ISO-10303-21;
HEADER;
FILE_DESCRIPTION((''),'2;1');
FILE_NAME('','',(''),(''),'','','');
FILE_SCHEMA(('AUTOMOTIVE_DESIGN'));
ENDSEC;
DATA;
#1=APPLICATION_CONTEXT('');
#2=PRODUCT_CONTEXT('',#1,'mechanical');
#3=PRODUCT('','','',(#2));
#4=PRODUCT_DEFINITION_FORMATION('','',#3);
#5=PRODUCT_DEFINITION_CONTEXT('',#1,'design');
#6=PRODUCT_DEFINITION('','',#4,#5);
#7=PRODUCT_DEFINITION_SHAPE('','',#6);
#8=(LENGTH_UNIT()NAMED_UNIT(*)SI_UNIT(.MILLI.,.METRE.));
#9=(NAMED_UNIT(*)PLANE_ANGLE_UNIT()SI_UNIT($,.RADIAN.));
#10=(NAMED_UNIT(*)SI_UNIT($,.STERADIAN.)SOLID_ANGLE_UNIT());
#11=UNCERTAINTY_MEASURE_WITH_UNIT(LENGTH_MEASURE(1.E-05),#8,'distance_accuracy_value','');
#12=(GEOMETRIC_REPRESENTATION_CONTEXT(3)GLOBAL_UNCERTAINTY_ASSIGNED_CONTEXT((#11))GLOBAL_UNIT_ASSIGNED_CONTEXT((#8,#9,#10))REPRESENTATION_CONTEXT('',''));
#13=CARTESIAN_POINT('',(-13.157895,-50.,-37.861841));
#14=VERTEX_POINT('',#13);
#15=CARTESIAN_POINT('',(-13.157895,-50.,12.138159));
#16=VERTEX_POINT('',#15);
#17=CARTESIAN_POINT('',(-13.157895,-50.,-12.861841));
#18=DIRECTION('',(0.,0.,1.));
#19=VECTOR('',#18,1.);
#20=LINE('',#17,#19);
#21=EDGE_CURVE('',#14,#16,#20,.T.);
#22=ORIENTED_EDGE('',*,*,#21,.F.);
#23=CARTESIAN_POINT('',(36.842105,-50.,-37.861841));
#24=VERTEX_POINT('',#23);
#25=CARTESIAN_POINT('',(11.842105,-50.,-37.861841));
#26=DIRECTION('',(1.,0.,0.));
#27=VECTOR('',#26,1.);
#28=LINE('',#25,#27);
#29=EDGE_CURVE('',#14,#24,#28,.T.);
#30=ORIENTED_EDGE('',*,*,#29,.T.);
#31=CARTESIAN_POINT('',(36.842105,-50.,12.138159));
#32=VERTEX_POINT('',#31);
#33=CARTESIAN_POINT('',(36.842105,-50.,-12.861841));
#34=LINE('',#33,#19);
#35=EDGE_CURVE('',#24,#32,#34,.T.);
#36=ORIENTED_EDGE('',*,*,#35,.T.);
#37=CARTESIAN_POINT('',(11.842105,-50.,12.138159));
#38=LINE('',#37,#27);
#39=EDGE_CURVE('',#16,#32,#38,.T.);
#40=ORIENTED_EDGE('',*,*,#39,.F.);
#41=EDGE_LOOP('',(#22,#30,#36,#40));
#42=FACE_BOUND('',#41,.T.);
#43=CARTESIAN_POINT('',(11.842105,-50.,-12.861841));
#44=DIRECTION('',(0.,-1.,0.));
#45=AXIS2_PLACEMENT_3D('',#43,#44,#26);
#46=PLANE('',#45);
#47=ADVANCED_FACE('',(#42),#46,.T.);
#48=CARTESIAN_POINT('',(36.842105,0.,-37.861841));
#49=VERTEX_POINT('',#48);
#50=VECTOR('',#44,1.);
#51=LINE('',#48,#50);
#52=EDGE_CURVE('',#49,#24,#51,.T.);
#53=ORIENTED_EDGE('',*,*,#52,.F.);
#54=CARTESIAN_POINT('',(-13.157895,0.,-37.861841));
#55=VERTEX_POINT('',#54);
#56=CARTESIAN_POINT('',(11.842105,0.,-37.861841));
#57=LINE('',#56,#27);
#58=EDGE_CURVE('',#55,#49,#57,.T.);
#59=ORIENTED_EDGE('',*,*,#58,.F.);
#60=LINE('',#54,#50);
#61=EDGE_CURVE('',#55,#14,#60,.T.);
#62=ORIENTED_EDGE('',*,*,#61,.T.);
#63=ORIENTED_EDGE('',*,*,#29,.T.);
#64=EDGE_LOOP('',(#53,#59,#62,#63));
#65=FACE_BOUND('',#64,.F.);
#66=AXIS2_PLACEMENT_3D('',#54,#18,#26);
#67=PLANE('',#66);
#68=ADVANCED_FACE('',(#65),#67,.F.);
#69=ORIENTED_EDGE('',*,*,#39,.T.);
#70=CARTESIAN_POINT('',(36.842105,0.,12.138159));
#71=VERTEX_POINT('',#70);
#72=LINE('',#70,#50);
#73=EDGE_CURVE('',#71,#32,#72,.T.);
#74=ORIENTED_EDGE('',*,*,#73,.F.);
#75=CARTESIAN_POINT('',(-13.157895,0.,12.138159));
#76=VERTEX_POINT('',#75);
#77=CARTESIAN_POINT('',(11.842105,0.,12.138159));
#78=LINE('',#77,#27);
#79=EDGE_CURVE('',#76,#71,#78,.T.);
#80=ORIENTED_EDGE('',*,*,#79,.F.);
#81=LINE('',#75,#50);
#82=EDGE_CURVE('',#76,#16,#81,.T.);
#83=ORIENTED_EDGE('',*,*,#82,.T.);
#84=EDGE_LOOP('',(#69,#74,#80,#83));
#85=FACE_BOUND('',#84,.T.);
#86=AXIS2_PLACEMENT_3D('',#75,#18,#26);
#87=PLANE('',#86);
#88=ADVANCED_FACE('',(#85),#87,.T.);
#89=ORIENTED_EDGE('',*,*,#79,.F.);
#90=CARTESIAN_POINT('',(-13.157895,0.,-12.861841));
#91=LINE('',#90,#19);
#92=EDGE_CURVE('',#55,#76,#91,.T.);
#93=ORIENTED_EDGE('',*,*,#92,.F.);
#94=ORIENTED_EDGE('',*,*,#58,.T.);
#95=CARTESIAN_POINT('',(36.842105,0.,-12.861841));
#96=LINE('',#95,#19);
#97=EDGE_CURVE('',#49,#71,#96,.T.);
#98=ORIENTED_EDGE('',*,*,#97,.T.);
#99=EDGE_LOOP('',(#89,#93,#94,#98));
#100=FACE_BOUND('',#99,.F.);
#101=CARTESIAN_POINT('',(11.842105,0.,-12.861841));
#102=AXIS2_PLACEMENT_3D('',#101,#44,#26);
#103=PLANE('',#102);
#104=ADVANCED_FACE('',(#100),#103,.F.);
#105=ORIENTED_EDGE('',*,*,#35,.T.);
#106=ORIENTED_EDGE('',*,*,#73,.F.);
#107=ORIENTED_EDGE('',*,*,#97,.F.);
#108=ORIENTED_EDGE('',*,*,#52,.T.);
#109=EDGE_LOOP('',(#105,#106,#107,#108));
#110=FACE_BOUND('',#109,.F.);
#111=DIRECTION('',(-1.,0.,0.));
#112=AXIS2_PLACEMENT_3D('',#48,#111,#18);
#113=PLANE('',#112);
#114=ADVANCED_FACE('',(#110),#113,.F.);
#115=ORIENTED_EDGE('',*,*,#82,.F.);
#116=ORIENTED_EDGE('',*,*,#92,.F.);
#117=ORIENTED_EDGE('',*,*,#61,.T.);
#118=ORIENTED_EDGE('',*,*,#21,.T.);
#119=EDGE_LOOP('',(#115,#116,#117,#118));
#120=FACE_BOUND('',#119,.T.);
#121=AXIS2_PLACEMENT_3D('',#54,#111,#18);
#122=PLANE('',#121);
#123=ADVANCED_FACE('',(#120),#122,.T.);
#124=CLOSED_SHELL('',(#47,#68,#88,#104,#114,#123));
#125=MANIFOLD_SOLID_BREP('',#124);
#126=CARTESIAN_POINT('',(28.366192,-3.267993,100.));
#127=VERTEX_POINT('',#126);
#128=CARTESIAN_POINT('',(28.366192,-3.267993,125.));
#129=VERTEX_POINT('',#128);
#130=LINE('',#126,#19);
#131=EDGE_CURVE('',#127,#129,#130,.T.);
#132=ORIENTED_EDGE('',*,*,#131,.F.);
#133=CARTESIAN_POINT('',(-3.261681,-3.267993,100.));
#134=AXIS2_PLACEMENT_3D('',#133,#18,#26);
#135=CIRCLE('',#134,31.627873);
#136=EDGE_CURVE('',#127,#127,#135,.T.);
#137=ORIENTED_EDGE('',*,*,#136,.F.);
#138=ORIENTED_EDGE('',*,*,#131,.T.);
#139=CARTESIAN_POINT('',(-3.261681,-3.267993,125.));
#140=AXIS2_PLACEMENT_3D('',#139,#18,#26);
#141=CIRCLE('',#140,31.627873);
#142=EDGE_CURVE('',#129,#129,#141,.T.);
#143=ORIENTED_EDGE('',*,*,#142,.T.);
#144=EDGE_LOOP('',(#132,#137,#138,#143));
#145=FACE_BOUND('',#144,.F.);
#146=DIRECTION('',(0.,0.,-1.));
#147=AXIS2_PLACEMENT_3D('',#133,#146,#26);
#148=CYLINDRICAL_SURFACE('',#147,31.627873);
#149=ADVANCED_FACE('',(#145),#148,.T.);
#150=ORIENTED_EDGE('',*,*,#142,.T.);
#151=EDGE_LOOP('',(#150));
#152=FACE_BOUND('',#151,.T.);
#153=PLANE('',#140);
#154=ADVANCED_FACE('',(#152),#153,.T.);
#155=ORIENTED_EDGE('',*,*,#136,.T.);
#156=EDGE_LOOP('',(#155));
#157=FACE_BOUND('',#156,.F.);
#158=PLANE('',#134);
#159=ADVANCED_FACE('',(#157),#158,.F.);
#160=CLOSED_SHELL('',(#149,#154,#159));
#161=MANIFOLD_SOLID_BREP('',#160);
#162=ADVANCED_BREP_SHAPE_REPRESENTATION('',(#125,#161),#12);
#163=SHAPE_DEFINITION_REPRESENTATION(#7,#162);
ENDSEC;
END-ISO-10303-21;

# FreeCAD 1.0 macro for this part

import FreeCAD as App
import Part
import Sketcher


def add_polygon(sketch, points):
    """Adds a closed chain of lines whose ends are joined by coincident constraints."""
    first, n = sketch.GeometryCount, len(points)
    for a, b in zip(points, points[1:] + points[:1]):
        sketch.addGeometry(Part.LineSegment(App.Vector(*a, 0), App.Vector(*b, 0)), False)
    for i in range(n):
        sketch.addConstraint(Sketcher.Constraint("Coincident", first + i, 2, first + (i + 1) % n, 1))

doc = App.newDocument("Part")
body = doc.addObject("PartDesign::Body", "Body")

# Sketch on XZ plane
sketch1 = body.newObject("Sketcher::SketchObject", "Sketch")
sketch1.AttachmentSupport = (doc.getObject("XZ_Plane"), [""])
sketch1.MapMode = "FlatFace"
add_polygon(sketch1, [(-13.157895, 12.138159), (-13.157895, -37.861841), (36.842105, -37.861841), (36.842105, 12.138159)])  # lines 0-3
sketch1.addConstraint([
    Sketcher.Constraint("Vertical", 0),
    Sketcher.Constraint("Horizontal", 1),
    Sketcher.Constraint("Vertical", 2),
    Sketcher.Constraint("Horizontal", 3),
    Sketcher.Constraint("Equal", 3, 0),
    Sketcher.Constraint("DistanceX", 1, 1, 1, 2, 50.0),
    Sketcher.Constraint("DistanceY", 0, 2, -1, 1, 37.861841),
    Sketcher.Constraint("DistanceX", 0, 2, -1, 1, 13.157895),
])
pad1 = body.newObject("PartDesign::Pad", "Pad")
pad1.Profile = sketch1
pad1.Length = 50
body2 = doc.addObject("PartDesign::Body", "Body001")

# Sketch on XY plane
sketch2 = body2.newObject("Sketcher::SketchObject", "Sketch001")
sketch2.AttachmentSupport = (doc.getObject("XY_Plane001"), [""])
sketch2.MapMode = "FlatFace"
sketch2.AttachmentOffset = App.Placement(App.Vector(0, 0, 100), App.Rotation())
sketch2.addGeometry(Part.Circle(App.Vector(-3.261681, -3.267993, 0), App.Vector(0, 0, 1), 31.627873), False)
sketch2.addConstraint([
    Sketcher.Constraint("Diameter", 0, 63.255746),
    Sketcher.Constraint("DistanceX", 0, 3, -1, 1, 3.261681),
    Sketcher.Constraint("DistanceY", 0, 3, -1, 1, 3.267993),
])
pad2 = body2.newObject("PartDesign::Pad", "Pad001")
pad2.Profile = sketch2
pad2.Length = 25

doc.recompute()
